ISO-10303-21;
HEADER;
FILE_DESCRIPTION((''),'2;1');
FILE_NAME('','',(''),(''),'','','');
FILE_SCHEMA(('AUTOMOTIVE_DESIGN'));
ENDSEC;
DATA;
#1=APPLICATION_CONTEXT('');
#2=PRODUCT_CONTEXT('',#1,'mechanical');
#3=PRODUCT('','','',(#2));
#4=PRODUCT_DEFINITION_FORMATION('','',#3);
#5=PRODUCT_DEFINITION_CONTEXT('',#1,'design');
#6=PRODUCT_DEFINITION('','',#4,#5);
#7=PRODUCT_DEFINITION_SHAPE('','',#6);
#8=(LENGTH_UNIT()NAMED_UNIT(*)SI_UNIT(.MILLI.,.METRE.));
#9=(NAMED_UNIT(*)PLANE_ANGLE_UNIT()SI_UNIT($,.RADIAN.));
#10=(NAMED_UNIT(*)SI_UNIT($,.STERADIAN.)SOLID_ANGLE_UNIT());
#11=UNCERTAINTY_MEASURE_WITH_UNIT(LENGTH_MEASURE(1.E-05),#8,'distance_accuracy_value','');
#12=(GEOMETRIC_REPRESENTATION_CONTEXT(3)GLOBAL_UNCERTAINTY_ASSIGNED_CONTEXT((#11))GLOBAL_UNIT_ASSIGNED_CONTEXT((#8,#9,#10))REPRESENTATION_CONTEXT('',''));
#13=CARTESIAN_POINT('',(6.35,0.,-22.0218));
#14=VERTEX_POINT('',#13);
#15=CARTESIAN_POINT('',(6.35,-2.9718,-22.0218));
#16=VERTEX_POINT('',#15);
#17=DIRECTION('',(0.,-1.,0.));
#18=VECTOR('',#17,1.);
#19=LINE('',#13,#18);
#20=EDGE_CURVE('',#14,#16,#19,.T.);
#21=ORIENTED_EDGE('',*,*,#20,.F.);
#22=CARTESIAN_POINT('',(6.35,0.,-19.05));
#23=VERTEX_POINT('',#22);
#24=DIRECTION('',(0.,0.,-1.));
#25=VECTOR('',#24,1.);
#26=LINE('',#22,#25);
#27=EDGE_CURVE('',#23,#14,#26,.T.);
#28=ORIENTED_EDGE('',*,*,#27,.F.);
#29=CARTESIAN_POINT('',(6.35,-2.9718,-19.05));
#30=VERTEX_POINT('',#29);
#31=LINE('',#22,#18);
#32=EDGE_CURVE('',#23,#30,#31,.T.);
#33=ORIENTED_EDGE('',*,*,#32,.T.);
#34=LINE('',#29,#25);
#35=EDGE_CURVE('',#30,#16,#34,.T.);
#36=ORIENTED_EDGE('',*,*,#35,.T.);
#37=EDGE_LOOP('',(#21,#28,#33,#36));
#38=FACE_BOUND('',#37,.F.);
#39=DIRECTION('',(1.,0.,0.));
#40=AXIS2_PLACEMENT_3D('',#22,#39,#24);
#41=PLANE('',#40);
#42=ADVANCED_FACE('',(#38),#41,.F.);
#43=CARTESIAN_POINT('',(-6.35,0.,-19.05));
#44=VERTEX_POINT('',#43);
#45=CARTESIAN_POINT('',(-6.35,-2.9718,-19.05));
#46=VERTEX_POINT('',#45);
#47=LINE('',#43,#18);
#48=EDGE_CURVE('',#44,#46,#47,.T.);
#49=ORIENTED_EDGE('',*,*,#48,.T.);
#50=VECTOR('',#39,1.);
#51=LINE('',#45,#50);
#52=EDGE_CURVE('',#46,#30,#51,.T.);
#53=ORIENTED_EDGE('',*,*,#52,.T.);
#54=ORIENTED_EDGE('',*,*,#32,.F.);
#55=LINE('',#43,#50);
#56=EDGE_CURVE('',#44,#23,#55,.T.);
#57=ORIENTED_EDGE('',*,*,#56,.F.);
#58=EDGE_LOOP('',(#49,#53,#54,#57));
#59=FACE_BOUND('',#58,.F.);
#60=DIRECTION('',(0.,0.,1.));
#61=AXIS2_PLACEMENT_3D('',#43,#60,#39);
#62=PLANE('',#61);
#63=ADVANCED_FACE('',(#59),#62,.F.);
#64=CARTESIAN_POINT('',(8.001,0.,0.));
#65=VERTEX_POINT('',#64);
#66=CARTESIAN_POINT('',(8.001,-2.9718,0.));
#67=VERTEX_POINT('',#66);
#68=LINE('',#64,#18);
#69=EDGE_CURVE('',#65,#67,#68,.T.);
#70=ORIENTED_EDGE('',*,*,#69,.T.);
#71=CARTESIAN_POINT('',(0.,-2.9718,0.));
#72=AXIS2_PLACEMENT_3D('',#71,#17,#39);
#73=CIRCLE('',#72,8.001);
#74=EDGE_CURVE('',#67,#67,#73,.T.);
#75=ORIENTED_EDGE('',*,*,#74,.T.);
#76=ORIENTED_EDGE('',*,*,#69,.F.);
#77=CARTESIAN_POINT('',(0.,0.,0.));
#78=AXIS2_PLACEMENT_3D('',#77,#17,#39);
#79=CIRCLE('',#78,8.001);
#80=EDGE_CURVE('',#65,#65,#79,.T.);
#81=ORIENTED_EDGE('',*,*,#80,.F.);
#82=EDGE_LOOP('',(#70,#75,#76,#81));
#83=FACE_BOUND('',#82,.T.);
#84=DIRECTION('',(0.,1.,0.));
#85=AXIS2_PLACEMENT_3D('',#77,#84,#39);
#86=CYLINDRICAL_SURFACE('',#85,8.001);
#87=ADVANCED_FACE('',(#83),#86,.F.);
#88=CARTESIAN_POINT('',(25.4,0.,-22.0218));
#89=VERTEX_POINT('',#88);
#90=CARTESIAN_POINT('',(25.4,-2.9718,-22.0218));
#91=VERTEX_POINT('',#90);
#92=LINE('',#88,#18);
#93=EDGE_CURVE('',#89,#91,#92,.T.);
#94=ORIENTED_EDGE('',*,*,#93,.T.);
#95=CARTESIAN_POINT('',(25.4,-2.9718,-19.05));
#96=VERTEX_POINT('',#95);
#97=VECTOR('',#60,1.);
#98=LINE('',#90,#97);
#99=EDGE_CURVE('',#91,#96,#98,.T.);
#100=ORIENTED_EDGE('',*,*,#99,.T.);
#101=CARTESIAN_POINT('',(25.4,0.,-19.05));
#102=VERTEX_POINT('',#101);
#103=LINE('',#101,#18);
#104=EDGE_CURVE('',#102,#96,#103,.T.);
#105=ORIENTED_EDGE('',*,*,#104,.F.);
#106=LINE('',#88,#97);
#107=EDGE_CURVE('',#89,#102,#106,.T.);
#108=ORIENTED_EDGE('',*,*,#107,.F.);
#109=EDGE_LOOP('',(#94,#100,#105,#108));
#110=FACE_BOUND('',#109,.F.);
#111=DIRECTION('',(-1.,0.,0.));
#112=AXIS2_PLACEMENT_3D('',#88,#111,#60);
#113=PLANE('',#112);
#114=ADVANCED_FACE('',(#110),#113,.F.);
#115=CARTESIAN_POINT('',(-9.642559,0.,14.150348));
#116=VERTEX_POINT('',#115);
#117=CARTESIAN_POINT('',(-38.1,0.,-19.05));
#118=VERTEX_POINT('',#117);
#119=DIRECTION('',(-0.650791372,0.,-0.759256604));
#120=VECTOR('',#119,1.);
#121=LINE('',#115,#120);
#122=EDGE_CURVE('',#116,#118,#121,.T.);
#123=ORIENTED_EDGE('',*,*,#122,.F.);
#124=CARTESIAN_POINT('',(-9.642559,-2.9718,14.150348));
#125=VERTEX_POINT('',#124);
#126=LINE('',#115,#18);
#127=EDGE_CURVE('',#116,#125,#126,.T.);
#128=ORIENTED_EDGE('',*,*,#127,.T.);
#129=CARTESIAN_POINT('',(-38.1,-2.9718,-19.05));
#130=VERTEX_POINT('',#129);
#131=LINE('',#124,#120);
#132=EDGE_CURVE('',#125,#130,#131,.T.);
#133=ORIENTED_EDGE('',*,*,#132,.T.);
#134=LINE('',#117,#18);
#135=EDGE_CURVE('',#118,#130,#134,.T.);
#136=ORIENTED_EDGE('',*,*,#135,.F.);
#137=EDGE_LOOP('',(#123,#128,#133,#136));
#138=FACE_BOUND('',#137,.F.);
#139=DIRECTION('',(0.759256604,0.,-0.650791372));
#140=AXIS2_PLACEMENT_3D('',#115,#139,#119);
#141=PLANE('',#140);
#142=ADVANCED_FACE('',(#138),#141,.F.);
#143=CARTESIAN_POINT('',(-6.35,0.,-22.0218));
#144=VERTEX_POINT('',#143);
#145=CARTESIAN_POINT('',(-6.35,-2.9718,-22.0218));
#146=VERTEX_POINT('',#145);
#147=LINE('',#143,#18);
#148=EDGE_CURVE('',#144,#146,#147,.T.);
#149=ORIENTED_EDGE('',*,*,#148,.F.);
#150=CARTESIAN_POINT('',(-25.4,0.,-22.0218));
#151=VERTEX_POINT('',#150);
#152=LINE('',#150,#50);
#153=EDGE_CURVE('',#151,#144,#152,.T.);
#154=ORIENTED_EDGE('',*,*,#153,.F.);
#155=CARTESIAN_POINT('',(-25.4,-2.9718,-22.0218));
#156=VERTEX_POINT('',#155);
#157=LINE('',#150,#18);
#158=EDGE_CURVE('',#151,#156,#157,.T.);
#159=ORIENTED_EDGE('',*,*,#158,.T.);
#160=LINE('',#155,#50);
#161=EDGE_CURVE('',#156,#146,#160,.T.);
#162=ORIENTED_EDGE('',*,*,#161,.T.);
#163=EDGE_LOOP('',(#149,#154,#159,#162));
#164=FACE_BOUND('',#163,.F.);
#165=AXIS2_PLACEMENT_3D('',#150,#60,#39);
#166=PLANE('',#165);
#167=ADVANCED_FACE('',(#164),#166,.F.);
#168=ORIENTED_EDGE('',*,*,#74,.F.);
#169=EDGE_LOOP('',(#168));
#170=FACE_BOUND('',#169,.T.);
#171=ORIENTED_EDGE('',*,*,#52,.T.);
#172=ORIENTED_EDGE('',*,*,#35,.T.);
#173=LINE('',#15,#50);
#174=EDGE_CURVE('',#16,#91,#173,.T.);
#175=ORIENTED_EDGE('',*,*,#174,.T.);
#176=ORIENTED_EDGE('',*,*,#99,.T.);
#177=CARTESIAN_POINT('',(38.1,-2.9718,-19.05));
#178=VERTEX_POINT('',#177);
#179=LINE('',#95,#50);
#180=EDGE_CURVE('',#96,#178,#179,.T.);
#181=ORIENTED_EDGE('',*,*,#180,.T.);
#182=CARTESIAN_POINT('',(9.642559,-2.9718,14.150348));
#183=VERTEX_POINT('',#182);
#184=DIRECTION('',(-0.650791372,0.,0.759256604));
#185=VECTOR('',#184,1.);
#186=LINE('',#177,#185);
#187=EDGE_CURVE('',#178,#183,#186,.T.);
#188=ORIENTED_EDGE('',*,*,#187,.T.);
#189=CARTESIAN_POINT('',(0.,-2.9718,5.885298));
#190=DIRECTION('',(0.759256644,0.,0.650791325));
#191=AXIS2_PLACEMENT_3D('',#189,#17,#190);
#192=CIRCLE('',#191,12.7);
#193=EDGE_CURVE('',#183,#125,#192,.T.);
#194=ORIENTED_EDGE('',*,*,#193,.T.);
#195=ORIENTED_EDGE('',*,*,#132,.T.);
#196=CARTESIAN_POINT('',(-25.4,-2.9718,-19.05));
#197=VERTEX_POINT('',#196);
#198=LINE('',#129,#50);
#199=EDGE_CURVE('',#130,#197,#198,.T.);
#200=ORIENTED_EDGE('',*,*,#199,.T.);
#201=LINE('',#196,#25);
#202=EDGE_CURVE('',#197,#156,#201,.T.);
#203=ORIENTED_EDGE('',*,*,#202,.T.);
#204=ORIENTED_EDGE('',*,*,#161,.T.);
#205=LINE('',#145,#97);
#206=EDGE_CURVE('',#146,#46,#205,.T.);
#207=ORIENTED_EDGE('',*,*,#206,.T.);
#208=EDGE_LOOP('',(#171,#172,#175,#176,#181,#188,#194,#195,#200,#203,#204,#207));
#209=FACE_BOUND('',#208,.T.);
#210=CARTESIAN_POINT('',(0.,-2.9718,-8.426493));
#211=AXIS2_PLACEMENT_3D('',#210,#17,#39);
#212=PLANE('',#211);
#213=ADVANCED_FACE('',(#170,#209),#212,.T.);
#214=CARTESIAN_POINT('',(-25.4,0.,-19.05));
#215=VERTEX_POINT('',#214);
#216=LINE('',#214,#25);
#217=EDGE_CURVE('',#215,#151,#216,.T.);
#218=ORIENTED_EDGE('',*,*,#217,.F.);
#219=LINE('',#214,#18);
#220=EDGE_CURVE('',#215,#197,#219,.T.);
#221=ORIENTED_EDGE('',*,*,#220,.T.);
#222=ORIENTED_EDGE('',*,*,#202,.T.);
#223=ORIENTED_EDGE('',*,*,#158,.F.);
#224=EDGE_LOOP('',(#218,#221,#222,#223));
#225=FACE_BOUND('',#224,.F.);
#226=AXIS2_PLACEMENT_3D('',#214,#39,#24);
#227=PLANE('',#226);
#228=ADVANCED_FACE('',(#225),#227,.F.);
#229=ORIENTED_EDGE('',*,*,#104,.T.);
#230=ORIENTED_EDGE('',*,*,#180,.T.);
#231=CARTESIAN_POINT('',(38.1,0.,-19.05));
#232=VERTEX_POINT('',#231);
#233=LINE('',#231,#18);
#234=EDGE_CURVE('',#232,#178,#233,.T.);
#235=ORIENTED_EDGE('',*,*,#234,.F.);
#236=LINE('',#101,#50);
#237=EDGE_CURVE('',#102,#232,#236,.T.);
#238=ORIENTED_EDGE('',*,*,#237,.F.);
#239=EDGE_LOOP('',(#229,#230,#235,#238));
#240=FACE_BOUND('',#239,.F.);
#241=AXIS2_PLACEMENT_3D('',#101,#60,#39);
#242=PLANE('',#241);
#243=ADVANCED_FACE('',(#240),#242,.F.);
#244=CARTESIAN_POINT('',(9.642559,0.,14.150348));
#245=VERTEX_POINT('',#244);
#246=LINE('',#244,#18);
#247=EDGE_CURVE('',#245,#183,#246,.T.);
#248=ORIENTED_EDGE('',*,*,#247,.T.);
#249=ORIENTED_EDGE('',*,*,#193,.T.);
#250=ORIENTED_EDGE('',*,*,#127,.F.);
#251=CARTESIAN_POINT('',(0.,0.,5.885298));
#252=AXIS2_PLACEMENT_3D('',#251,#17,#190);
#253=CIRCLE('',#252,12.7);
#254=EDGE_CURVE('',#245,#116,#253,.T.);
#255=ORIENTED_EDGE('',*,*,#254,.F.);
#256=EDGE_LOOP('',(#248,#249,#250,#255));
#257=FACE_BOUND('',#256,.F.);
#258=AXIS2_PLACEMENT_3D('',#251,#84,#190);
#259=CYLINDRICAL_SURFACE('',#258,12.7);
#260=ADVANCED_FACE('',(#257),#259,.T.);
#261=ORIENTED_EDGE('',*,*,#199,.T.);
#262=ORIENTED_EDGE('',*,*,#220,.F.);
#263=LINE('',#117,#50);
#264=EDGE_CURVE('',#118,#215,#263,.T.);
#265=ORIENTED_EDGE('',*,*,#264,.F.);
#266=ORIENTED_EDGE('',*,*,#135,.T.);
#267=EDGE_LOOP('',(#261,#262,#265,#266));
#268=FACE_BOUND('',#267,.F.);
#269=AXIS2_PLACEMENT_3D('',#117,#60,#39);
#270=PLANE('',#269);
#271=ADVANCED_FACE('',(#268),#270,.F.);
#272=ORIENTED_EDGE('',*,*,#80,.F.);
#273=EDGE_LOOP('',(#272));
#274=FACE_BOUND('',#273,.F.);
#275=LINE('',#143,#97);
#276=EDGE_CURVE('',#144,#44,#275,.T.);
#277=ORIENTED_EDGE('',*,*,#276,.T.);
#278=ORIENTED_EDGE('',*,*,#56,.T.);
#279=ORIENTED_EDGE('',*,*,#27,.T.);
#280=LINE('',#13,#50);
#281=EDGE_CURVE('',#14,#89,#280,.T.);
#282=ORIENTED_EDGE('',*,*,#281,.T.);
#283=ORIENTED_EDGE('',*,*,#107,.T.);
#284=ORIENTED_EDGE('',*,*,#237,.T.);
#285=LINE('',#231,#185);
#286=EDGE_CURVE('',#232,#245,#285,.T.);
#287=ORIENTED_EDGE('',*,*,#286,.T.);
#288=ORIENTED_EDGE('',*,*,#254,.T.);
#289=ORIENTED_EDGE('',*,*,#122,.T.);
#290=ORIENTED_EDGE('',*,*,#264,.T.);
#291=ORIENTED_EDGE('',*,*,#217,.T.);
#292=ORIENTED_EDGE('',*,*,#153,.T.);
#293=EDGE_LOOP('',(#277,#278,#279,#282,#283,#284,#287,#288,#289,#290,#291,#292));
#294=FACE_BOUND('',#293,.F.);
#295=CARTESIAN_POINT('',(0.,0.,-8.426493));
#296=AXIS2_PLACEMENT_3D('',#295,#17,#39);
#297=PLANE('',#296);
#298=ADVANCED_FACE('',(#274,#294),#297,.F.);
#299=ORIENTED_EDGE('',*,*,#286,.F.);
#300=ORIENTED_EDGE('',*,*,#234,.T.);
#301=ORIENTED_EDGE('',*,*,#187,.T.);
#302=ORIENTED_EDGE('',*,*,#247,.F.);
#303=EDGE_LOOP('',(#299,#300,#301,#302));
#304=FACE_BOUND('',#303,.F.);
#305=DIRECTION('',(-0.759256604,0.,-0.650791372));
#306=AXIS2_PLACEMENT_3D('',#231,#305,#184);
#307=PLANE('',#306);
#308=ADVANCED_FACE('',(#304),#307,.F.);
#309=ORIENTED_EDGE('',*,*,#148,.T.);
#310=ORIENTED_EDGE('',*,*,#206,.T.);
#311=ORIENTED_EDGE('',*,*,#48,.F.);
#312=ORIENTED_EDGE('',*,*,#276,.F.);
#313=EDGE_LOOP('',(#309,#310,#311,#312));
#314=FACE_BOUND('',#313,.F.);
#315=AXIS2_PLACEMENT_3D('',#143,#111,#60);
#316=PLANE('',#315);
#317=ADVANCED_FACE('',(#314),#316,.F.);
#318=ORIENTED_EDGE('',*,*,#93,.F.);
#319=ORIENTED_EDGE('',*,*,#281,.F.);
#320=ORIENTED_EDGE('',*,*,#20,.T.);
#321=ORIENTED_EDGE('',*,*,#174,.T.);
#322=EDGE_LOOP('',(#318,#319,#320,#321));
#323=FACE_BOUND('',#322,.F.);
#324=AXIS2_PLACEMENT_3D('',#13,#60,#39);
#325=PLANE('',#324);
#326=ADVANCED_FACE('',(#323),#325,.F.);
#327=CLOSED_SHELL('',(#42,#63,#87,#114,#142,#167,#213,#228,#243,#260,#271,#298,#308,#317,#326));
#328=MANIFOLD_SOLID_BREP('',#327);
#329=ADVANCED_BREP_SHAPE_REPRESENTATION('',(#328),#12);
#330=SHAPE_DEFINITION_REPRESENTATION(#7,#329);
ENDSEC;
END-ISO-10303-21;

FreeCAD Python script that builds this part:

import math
import FreeCAD as App
import Part
import Sketcher
Q = App.Units.Quantity

doc = App.newDocument("Part")
body = doc.addObject("PartDesign::Body", "Body")

sketch1 = body.newObject("Sketcher::SketchObject", "Sketch")
sketch1.AttachmentSupport = (doc.getObject("XZ_Plane"), [""])
sketch1.MapMode = "FlatFace"
sketch1.addGeometry(Part.LineSegment(App.Vector(-38.1, -19.1, 0), App.Vector(-25.4, -19.1, 0)), False)
sketch1.addGeometry(Part.LineSegment(App.Vector(-25.4, -19.1, 0), App.Vector(-25.4, -22, 0)), False)
sketch1.addGeometry(Part.LineSegment(App.Vector(-25.4, -22, 0), App.Vector(-6.3, -22, 0)), False)
sketch1.addGeometry(Part.LineSegment(App.Vector(-6.3, -22, 0), App.Vector(-6.3, -19.1, 0)), False)
sketch1.addGeometry(Part.LineSegment(App.Vector(-6.3, -19.1, 0), App.Vector(6.3, -19.1, 0)), False)
sketch1.addGeometry(Part.LineSegment(App.Vector(6.3, -19.1, 0), App.Vector(6.3, -22, 0)), False)
sketch1.addGeometry(Part.LineSegment(App.Vector(6.3, -22, 0), App.Vector(25.4, -22, 0)), False)
sketch1.addGeometry(Part.LineSegment(App.Vector(25.4, -22, 0), App.Vector(25.4, -19.1, 0)), False)
sketch1.addGeometry(Part.LineSegment(App.Vector(25.4, -19.1, 0), App.Vector(38.1, -19.1, 0)), False)
sketch1.addGeometry(Part.LineSegment(App.Vector(38.1, -19.1, 0), App.Vector(9.6, 14.2, 0)), False)
sketch1.addGeometry(Part.ArcOfCircle(Part.Circle(App.Vector(0, 5.9, 0), App.Vector(0, 0, 1), 12.7), math.radians(41), math.radians(139)), False)
sketch1.addGeometry(Part.LineSegment(App.Vector(-9.6, 14.2, 0), App.Vector(-38.1, -19.1, 0)), False)
sketch1.addGeometry(Part.Circle(App.Vector(0, 0, 0), App.Vector(0, 0, 1), 8), False)
sketch1.addConstraint(Sketcher.Constraint("Coincident", 0, 2, 1, 1))
sketch1.addConstraint(Sketcher.Constraint("Coincident", 1, 2, 2, 1))
sketch1.addConstraint(Sketcher.Constraint("Coincident", 2, 2, 3, 1))
sketch1.addConstraint(Sketcher.Constraint("Coincident", 3, 2, 4, 1))
sketch1.addConstraint(Sketcher.Constraint("Coincident", 4, 2, 5, 1))
sketch1.addConstraint(Sketcher.Constraint("Coincident", 5, 2, 6, 1))
sketch1.addConstraint(Sketcher.Constraint("Coincident", 6, 2, 7, 1))
sketch1.addConstraint(Sketcher.Constraint("Coincident", 7, 2, 8, 1))
sketch1.addConstraint(Sketcher.Constraint("Coincident", 8, 2, 9, 1))
sketch1.addConstraint(Sketcher.Constraint("Tangent", 9, 2, 10, 1))
sketch1.addConstraint(Sketcher.Constraint("Tangent", 10, 2, 11, 1))
sketch1.addConstraint(Sketcher.Constraint("Coincident", 11, 2, 0, 1))
sketch1.addConstraint(Sketcher.Constraint("Horizontal", 0))
sketch1.addConstraint(Sketcher.Constraint("Vertical", 1))
sketch1.addConstraint(Sketcher.Constraint("Horizontal", 2))
sketch1.addConstraint(Sketcher.Constraint("Vertical", 3))
sketch1.addConstraint(Sketcher.Constraint("Horizontal", 4))
sketch1.addConstraint(Sketcher.Constraint("Vertical", 5))
sketch1.addConstraint(Sketcher.Constraint("Horizontal", 6))
sketch1.addConstraint(Sketcher.Constraint("Vertical", 7))
sketch1.addConstraint(Sketcher.Constraint("Horizontal", 8))
sketch1.addConstraint(Sketcher.Constraint("Coincident", 12, 3, -1, 1))
sketch1.addConstraint(Sketcher.Constraint("Symmetric", 2, 2, 5, 2, -2))
sketch1.addConstraint(Sketcher.Constraint("Symmetric", 0, 2, 7, 2, -2))
sketch1.addConstraint(Sketcher.Constraint("Symmetric", 9, 2, 10, 2, -2))
sketch1.addConstraint(Sketcher.Constraint("Horizontal", 0, 2, 3, 2))
sketch1.addConstraint(Sketcher.Constraint("Equal", 0, 4))
sketch1.addConstraint(Sketcher.Constraint("Radius", 10, Q("0.5 in")))
sketch1.addConstraint(Sketcher.Constraint("Diameter", 12, Q("0.63 in")))
sketch1.addConstraint(Sketcher.Constraint("DistanceX", 0, 1, 0, 2, Q("0.5 in")))
sketch1.addConstraint(Sketcher.Constraint("DistanceX", 0, 2, -1, 1, Q("1 in")))
sketch1.addConstraint(Sketcher.Constraint("DistanceY", 1, 2, 1, 1, Q("0.117 in")))
sketch1.addConstraint(Sketcher.Constraint("DistanceY", 0, 2, -1, 1, Q("0.75 in")))
sketch1.addConstraint(Sketcher.Constraint("DistanceY", -1, 1, 10, 3, Q("5.885298 mm")))
pad1 = body.newObject("PartDesign::Pad", "Pad")
pad1.Profile = sketch1
pad1.Length = Q("0.117 in")

doc.recompute()
